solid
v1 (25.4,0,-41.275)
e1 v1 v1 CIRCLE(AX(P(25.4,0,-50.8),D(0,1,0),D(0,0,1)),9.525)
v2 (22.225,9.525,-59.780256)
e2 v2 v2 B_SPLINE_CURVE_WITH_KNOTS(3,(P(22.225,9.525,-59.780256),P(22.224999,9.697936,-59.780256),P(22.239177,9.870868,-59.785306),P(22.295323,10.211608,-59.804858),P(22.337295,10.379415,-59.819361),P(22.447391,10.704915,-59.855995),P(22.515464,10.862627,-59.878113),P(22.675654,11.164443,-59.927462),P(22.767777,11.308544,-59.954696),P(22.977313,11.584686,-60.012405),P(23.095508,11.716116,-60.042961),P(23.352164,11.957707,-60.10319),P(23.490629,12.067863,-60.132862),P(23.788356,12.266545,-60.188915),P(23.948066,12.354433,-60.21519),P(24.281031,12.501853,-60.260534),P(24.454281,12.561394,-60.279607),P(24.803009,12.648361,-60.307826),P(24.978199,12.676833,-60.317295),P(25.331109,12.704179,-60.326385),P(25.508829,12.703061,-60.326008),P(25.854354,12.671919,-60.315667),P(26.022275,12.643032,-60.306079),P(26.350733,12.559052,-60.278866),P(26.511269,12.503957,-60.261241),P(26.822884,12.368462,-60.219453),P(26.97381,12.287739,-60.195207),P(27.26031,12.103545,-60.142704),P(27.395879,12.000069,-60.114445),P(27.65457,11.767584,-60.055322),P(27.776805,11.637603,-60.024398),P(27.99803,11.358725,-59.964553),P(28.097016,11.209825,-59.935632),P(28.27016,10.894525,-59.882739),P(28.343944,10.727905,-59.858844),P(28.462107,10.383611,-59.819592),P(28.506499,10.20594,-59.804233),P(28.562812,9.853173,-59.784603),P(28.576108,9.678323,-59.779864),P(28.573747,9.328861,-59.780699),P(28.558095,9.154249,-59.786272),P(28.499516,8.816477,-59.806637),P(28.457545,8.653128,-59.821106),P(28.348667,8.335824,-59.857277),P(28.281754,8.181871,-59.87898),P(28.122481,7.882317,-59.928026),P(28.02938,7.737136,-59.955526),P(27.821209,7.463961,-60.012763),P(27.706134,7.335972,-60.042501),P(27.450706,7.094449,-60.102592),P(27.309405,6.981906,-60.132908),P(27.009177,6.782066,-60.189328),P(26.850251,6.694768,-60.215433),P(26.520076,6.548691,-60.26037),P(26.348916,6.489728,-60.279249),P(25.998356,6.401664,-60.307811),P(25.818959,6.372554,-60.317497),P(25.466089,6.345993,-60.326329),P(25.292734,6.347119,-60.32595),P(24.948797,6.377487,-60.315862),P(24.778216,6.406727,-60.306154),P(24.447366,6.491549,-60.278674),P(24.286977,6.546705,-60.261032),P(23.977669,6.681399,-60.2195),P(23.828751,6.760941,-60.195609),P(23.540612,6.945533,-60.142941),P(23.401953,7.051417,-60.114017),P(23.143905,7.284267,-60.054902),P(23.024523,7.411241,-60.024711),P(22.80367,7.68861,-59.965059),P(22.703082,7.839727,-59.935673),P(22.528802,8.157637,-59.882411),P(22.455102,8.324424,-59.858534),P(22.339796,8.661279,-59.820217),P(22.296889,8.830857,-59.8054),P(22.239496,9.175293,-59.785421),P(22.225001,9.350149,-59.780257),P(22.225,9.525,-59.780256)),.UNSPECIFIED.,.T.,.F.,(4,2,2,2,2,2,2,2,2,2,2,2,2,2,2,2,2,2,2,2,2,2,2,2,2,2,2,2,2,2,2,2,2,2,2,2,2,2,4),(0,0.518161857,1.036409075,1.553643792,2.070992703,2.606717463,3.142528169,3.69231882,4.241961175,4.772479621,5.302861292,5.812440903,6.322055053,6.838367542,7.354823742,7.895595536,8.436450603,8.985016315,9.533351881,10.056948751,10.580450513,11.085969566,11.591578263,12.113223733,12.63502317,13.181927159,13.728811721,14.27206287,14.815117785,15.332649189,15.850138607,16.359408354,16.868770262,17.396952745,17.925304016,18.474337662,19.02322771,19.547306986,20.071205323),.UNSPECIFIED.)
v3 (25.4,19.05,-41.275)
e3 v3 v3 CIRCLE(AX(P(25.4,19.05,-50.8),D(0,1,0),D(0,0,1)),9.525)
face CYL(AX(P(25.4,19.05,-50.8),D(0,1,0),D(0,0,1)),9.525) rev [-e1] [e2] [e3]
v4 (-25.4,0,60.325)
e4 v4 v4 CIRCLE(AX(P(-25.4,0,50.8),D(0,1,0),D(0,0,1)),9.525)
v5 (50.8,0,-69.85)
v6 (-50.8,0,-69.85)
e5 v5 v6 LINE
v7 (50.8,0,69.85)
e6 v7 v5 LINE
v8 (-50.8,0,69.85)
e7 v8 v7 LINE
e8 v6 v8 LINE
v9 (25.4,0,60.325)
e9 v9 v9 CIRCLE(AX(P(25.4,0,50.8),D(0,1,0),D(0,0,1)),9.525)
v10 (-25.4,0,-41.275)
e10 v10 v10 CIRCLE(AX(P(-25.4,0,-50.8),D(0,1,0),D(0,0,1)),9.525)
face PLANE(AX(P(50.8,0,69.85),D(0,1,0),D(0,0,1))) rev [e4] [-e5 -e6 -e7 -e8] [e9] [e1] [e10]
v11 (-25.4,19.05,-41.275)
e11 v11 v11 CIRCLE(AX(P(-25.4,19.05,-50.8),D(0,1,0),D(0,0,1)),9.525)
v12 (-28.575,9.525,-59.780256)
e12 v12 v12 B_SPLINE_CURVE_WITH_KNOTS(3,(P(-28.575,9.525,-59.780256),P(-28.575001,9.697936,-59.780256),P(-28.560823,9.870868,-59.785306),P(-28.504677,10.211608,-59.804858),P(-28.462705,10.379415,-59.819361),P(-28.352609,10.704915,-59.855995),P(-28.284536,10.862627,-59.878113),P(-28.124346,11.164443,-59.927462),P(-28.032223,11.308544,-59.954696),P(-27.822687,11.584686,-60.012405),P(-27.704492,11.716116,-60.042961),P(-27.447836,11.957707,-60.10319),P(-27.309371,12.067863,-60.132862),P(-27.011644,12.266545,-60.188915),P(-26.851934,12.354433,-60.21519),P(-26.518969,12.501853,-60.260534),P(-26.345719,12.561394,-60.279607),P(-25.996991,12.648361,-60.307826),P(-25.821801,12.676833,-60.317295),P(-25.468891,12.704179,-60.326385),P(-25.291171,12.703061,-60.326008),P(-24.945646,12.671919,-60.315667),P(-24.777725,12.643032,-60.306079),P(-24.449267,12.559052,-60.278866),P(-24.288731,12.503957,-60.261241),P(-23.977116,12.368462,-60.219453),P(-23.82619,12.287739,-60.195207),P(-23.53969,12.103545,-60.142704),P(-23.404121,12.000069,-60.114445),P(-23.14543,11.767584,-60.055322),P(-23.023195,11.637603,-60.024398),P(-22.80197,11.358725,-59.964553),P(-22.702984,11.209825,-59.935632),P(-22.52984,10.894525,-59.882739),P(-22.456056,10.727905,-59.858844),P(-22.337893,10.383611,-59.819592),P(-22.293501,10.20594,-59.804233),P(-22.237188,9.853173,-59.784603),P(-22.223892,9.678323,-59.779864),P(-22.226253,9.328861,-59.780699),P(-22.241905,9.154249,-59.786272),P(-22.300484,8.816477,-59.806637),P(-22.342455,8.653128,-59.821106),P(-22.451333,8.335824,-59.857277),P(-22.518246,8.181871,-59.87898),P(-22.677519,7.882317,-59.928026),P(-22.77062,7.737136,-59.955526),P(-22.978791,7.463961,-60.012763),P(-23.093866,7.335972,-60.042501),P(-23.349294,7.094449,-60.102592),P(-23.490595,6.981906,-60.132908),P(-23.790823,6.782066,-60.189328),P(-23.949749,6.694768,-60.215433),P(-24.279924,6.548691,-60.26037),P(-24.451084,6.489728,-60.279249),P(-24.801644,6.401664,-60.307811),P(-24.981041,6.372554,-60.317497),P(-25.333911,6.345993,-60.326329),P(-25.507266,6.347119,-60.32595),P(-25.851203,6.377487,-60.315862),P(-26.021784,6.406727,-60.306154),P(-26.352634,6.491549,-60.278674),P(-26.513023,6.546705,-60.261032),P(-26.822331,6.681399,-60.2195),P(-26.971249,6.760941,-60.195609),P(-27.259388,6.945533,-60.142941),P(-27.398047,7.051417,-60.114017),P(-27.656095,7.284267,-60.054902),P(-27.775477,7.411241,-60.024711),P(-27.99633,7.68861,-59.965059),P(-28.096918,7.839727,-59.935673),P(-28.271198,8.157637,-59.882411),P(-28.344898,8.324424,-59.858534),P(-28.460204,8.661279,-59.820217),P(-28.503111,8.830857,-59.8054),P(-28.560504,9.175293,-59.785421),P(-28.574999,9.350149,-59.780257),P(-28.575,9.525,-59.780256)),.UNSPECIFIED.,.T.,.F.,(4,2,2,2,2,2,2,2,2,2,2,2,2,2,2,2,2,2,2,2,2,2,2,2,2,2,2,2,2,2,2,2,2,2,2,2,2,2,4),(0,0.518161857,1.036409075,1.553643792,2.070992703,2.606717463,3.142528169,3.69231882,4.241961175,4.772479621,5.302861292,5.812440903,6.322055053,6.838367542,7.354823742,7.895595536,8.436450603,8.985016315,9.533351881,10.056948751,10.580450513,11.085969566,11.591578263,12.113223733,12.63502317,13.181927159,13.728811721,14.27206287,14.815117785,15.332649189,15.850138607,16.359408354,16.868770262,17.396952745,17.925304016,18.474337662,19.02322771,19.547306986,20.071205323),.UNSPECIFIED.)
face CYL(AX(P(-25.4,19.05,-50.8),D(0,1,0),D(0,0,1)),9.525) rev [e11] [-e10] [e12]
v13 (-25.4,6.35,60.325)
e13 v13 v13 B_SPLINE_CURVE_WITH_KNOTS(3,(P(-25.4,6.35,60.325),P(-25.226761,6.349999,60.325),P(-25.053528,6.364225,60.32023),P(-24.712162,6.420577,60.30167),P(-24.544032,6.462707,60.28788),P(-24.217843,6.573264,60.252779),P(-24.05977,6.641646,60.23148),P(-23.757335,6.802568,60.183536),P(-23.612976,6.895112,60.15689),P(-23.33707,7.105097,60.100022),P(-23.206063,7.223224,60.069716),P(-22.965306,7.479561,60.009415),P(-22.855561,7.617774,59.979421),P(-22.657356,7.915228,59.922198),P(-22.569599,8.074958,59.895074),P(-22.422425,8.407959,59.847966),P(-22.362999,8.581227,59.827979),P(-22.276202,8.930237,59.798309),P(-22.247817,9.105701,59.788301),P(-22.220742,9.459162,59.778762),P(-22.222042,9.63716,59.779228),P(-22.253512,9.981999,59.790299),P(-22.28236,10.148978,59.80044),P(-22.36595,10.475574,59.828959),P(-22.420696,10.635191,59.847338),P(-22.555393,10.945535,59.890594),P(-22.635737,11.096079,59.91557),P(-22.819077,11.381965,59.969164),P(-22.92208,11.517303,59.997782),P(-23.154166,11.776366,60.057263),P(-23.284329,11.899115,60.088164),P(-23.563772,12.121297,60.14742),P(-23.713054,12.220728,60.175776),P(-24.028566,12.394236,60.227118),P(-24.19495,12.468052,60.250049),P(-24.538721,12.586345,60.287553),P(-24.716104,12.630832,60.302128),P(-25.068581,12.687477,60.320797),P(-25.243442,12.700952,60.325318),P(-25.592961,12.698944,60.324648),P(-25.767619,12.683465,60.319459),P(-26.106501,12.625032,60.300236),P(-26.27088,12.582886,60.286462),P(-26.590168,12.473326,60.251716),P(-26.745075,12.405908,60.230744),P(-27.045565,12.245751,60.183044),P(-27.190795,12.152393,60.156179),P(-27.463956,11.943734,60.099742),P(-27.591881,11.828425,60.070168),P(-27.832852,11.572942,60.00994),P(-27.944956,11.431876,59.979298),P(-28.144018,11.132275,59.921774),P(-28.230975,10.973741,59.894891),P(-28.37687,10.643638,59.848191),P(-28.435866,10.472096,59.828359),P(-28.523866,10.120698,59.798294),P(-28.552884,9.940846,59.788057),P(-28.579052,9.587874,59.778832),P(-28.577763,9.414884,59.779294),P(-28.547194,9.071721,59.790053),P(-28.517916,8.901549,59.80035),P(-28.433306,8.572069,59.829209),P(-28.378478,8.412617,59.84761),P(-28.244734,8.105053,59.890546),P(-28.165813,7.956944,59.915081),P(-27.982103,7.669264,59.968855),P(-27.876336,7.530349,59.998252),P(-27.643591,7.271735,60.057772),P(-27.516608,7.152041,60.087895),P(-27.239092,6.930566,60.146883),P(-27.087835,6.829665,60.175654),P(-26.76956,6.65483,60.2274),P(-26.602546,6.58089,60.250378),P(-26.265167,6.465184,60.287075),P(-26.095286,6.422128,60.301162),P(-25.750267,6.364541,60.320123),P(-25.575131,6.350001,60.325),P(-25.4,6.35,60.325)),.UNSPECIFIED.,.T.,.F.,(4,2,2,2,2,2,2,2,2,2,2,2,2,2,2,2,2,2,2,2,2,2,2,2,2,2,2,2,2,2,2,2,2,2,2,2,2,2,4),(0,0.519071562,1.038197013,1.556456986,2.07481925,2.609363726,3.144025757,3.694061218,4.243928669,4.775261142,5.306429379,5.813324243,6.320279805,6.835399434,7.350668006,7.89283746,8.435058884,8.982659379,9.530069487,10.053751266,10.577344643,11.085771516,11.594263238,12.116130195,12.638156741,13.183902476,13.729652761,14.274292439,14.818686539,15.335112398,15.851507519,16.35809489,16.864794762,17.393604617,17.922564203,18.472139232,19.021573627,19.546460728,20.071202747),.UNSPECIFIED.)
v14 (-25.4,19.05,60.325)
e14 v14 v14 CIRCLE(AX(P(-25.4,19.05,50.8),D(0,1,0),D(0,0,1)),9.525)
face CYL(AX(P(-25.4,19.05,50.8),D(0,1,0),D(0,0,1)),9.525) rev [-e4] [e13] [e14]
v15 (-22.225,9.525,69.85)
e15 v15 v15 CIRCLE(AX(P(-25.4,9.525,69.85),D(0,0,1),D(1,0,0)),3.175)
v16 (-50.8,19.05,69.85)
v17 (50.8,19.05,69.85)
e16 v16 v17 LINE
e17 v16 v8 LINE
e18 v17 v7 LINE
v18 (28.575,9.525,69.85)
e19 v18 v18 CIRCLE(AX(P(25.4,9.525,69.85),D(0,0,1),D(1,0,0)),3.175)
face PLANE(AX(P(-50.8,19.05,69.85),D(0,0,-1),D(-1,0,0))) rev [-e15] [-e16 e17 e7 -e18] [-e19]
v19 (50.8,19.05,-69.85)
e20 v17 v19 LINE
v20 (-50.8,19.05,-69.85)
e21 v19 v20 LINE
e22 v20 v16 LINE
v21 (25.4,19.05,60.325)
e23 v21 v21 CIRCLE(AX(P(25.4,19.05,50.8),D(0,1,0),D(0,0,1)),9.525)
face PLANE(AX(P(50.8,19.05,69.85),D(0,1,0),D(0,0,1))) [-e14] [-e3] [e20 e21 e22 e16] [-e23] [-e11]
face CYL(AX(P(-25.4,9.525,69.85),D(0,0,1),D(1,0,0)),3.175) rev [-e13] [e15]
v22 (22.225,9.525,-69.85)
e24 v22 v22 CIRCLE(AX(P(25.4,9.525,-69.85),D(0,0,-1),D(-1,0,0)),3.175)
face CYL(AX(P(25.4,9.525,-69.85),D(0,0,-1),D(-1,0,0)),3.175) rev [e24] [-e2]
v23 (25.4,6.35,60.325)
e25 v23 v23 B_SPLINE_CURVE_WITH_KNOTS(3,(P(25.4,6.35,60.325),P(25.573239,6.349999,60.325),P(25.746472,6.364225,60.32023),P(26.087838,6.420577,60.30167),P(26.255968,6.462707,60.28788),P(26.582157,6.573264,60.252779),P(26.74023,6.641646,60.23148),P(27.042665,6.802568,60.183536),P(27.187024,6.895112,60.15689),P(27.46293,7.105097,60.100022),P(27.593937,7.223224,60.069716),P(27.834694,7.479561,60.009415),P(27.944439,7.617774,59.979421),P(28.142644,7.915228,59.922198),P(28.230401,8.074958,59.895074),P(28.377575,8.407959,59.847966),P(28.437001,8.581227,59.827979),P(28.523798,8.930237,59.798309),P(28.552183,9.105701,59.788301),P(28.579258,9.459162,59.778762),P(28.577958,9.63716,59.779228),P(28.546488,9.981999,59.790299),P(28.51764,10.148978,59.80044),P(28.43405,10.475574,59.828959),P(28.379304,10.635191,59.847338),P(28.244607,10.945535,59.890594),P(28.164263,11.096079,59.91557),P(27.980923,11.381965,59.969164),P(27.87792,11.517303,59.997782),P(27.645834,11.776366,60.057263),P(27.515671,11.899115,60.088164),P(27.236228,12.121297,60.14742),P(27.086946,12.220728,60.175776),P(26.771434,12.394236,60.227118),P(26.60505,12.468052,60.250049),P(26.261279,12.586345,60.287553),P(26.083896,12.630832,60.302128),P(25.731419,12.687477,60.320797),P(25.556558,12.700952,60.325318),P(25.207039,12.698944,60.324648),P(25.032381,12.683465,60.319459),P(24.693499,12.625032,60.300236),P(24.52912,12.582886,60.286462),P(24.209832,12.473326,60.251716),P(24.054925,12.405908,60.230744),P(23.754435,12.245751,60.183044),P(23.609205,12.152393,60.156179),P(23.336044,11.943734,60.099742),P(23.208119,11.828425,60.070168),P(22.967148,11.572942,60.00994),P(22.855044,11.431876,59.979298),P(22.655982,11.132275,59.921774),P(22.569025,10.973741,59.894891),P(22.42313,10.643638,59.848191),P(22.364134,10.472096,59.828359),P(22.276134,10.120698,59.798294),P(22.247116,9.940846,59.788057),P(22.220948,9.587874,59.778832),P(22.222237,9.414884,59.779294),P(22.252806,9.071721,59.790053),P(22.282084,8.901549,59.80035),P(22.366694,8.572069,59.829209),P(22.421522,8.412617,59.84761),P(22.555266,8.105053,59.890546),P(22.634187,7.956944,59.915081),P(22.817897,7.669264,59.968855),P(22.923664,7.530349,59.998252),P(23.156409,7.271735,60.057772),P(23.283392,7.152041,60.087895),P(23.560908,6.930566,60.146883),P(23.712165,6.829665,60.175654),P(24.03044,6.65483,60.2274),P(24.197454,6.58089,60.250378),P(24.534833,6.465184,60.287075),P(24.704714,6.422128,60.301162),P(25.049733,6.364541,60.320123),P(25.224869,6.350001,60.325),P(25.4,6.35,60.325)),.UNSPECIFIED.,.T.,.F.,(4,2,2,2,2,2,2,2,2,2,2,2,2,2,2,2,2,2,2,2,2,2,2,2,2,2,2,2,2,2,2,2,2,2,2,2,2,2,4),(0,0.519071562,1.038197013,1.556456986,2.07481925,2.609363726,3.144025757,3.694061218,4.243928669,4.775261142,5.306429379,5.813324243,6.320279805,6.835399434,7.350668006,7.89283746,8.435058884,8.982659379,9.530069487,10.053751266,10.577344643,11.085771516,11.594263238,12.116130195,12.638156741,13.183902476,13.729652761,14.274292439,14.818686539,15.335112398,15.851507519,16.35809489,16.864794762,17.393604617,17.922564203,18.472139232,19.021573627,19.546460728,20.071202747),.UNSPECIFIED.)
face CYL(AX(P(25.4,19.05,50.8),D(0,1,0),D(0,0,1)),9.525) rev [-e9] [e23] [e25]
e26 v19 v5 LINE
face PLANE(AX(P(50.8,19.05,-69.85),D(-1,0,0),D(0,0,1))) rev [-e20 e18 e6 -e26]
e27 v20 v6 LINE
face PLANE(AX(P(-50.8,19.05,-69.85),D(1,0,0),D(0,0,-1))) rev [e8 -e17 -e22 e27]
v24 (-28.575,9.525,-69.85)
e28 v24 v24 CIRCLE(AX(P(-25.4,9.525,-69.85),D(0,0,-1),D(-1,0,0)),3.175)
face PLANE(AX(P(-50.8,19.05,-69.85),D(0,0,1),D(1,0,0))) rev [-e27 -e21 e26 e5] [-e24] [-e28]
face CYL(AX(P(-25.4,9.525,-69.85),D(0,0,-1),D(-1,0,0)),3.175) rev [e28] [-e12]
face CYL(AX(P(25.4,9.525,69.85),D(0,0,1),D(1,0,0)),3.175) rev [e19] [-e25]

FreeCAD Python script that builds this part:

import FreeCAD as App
import Part
import Sketcher
Q = App.Units.Quantity


def add_polygon(sketch, points):
    """Adds a closed chain of lines whose ends are joined by coincident constraints."""
    first, n = sketch.GeometryCount, len(points)
    for a, b in zip(points, points[1:] + points[:1]):
        sketch.addGeometry(Part.LineSegment(App.Vector(*a, 0), App.Vector(*b, 0)), False)
    for i in range(n):
        sketch.addConstraint(Sketcher.Constraint("Coincident", first + i, 2, first + (i + 1) % n, 1))

doc = App.newDocument("Part")
body = doc.addObject("PartDesign::Body", "Body")

# Sketch on XZ plane
sketch1 = doc.addObject("Sketcher::SketchObject", "Sketch")
body.addObject(sketch1)
sketch1.AttachmentSupport = (doc.XZ_Plane, [""])
sketch1.MapMode = "FlatFace"
add_polygon(sketch1, [(-51, -70), (-51, 70), (51, 70), (51, -70)])  # lines 0-3
sketch1.addConstraint([
    Sketcher.Constraint("Vertical", 0),
    Sketcher.Constraint("Horizontal", 1),
    Sketcher.Constraint("Vertical", 2),
    Sketcher.Constraint("Horizontal", 3),
    Sketcher.Constraint("Symmetric", 0, 2, 2, 2, -1, 1),
    Sketcher.Constraint("DistanceX", 1, 1, 1, 2, Q("4 in")),
    Sketcher.Constraint("DistanceY", 0, 1, 0, 2, Q("5.5 in")),
])
pad1 = doc.addObject("PartDesign::Pad", "Pad")
body.addObject(pad1)
pad1.Profile = sketch1
pad1.Length = Q("0.75 in")
pad1.Reversed = True

# Sketch on YZ plane
sketch2 = doc.addObject("Sketcher::SketchObject", "Sketch001")
body.addObject(sketch2)
sketch2.AttachmentSupport = (doc.YZ_Plane, [""])
sketch2.MapMode = "FlatFace"
sketch2.AttachmentOffset = App.Placement(App.Vector(0, 0, -1 * 25.4), App.Rotation())
add_polygon(sketch2, [(-6, -51), (19, -51), (19, -41), (0, -41)])  # lines 0-3
sketch2.addGeometry(Part.LineSegment(App.Vector(19, -51, 0), App.Vector(-6, -51, 0)), True)  # axis
sketch2.addConstraint([
    Sketcher.Constraint("Horizontal", 0),
    Sketcher.Constraint("Vertical", 1),
    Sketcher.Constraint("Horizontal", 2),
    Sketcher.Constraint("Horizontal", 4),
    Sketcher.Constraint("Coincident", 4, 1, 0, 2),
    Sketcher.Constraint("PointOnObject", 2, 2, -2),
    Sketcher.Constraint("Equal", 0, 4),
    Sketcher.Constraint("DistanceY", 0, 2, -1, 1, Q("2 in")),
    Sketcher.Constraint("Angle", 3, Q("-121 deg")),
    Sketcher.Constraint("DistanceX", 2, 2, 2, 1, Q("0.75 in")),
    Sketcher.Constraint("DistanceY", 1, 1, 1, 2, Q("0.375 in")),
])
groove = doc.addObject("PartDesign::Groove", "Groove")
body.addObject(groove)
groove.Profile = sketch2
groove.ReferenceAxis = (sketch2, ["Axis0"])
groove.Angle = 360
doc.recompute()

mirrored = doc.addObject("PartDesign::Mirrored", "Mirrored")
body.addObject(mirrored)
mirrored.Originals = [groove]
mirrored.MirrorPlane = (doc.XY_Plane, [""])
body.Tip = mirrored
doc.recompute()

mirrored2 = doc.addObject("PartDesign::Mirrored", "Mirrored001")
body.addObject(mirrored2)
mirrored2.Originals = [groove]
mirrored2.MirrorPlane = (doc.YZ_Plane, [""])
body.Tip = mirrored2

# Sketch on YZ plane
sketch3 = doc.addObject("Sketcher::SketchObject", "Sketch002")
body.addObject(sketch3)
sketch3.AttachmentSupport = (doc.YZ_Plane, [""])
sketch3.MapMode = "FlatFace"
sketch3.AttachmentOffset = App.Placement(App.Vector(0, 0, 1 * 25.4), App.Rotation())
add_polygon(sketch3, [(-6, 51), (19, 51), (19, 41), (0, 41)])  # lines 0-3
sketch3.addGeometry(Part.LineSegment(App.Vector(19, 51, 0), App.Vector(-6, 51, 0)), True)  # axis
sketch3.addConstraint([
    Sketcher.Constraint("Horizontal", 0),
    Sketcher.Constraint("Vertical", 1),
    Sketcher.Constraint("Horizontal", 2),
    Sketcher.Constraint("Horizontal", 4),
    Sketcher.Constraint("Coincident", 4, 1, 0, 2),
    Sketcher.Constraint("PointOnObject", 2, 2, -2),
    Sketcher.Constraint("Equal", 0, 4),
    Sketcher.Constraint("DistanceY", -1, 1, 0, 2, Q("2 in")),
    Sketcher.Constraint("Angle", 3, Q("121 deg")),
    Sketcher.Constraint("DistanceX", 2, 2, 2, 1, Q("0.75 in")),
    Sketcher.Constraint("DistanceY", 1, 2, 1, 1, Q("0.375 in")),
])
groove2 = doc.addObject("PartDesign::Groove", "Groove001")
body.addObject(groove2)
groove2.Profile = sketch3
groove2.ReferenceAxis = (sketch3, ["Axis0"])
groove2.Angle = 360

# Sketch on YZ plane
sketch4 = doc.addObject("Sketcher::SketchObject", "Sketch003")
body.addObject(sketch4)
sketch4.AttachmentSupport = (doc.YZ_Plane, [""])
sketch4.MapMode = "FlatFace"
sketch4.AttachmentOffset = App.Placement(App.Vector(0, 0, 1 * 25.4), App.Rotation())
add_polygon(sketch4, [(9.5, -48.9), (9.5, -69.8), (12.7, -69.8), (12.7, -50.8)])  # lines 0-3
sketch4.addGeometry(Part.LineSegment(App.Vector(9.5, -69.8, 0), App.Vector(9.5, -48.9, 0)), True)  # axis
sketch4.addConstraint([
    Sketcher.Constraint("Vertical", 0),
    Sketcher.Constraint("Horizontal", 1),
    Sketcher.Constraint("Vertical", 2),
    Sketcher.Constraint("Vertical", 4),
    Sketcher.Constraint("Coincident", 4, 1, 0, 2),
    Sketcher.Constraint("Equal", 0, 4),
    Sketcher.Constraint("DistanceY", 2, 2, -1, 1, Q("2 in")),
    Sketcher.Constraint("Angle", 3, Q("149 deg")),
    Sketcher.Constraint("DistanceY", 2, 1, 2, 2, Q("0.75 in")),
    Sketcher.Constraint("DistanceX", -1, 1, 1, 2, Q("0.5 in")),
    Sketcher.Constraint("DistanceX", 1, 1, 1, 2, Q("0.125 in")),
])
groove3 = doc.addObject("PartDesign::Groove", "Groove002")
body.addObject(groove3)
groove3.Profile = sketch4
groove3.ReferenceAxis = (sketch4, ["Axis0"])
groove3.Angle = 360
doc.recompute()

mirrored3 = doc.addObject("PartDesign::Mirrored", "Mirrored002")
body.addObject(mirrored3)
mirrored3.Originals = [groove3]
mirrored3.MirrorPlane = (doc.XY_Plane, [""])
body.Tip = mirrored3
doc.recompute()

mirrored4 = doc.addObject("PartDesign::Mirrored", "Mirrored003")
body.addObject(mirrored4)
mirrored4.Originals = [groove3]
mirrored4.MirrorPlane = (doc.YZ_Plane, [""])
body.Tip = mirrored4

# Sketch on YZ plane
sketch5 = doc.addObject("Sketcher::SketchObject", "Sketch004")
body.addObject(sketch5)
sketch5.AttachmentSupport = (doc.YZ_Plane, [""])
sketch5.MapMode = "FlatFace"
sketch5.AttachmentOffset = App.Placement(App.Vector(0, 0, -1 * 25.4), App.Rotation())
add_polygon(sketch5, [(9.5, 48.9), (9.5, 69.8), (12.7, 69.8), (12.7, 50.8)])  # lines 0-3
sketch5.addGeometry(Part.LineSegment(App.Vector(9.5, 69.8, 0), App.Vector(9.5, 48.9, 0)), True)  # axis
sketch5.addConstraint([
    Sketcher.Constraint("Vertical", 0),
    Sketcher.Constraint("Horizontal", 1),
    Sketcher.Constraint("Vertical", 2),
    Sketcher.Constraint("Vertical", 4),
    Sketcher.Constraint("Coincident", 4, 1, 0, 2),
    Sketcher.Constraint("Equal", 0, 4),
    Sketcher.Constraint("DistanceY", -1, 1, 2, 2, Q("2 in")),
    Sketcher.Constraint("Angle", 3, Q("-149 deg")),
    Sketcher.Constraint("DistanceY", 2, 2, 2, 1, Q("0.75 in")),
    Sketcher.Constraint("DistanceX", -1, 1, 1, 2, Q("0.5 in")),
    Sketcher.Constraint("DistanceX", 1, 1, 1, 2, Q("0.125 in")),
])
groove4 = doc.addObject("PartDesign::Groove", "Groove003")
body.addObject(groove4)
groove4.Profile = sketch5
groove4.ReferenceAxis = (sketch5, ["Axis0"])
groove4.Angle = 360

doc.recompute()
